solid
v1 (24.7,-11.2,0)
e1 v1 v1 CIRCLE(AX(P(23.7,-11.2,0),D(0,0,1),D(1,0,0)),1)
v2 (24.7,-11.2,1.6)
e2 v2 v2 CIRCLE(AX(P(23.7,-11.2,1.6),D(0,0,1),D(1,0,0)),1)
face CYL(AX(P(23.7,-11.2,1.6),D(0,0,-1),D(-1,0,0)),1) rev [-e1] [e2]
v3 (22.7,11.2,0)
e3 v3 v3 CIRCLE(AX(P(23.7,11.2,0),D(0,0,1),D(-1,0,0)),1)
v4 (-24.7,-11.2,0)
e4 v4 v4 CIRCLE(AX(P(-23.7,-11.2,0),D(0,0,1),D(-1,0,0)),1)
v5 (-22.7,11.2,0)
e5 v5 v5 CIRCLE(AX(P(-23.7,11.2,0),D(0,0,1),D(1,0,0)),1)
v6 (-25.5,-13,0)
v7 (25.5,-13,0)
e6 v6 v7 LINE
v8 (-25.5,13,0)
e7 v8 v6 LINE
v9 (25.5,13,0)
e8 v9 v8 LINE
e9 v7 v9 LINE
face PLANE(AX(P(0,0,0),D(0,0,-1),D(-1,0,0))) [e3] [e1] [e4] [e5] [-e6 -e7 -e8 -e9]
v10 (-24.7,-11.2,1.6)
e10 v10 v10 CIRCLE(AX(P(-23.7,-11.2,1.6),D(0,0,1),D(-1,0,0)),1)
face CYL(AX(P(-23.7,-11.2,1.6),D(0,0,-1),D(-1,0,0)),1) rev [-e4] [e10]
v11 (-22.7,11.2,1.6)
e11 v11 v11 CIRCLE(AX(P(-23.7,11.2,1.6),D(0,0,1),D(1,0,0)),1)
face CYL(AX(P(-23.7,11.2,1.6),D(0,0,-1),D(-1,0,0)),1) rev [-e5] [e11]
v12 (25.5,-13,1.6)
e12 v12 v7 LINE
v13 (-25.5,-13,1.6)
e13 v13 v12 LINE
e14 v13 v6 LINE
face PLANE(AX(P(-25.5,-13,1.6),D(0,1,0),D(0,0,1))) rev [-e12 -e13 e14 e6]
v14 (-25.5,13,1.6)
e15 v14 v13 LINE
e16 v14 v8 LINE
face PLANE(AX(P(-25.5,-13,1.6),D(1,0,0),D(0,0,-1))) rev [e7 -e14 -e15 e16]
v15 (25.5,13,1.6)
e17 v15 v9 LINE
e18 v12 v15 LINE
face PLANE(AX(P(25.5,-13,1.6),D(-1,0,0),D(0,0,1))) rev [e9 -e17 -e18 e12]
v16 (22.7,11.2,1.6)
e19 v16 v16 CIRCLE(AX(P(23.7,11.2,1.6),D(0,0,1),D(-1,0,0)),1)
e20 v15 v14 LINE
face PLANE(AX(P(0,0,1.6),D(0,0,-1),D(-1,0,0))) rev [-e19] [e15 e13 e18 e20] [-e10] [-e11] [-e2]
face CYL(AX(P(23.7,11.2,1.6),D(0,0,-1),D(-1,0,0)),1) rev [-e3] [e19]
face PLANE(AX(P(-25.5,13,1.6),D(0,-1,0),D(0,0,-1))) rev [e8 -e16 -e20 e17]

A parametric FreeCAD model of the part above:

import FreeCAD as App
import Part
import Sketcher
from FreeCAD import Vector
Q = App.Units.Quantity


def add_polygon(sketch, points):
    """Adds a closed chain of lines whose ends are joined by coincident constraints."""
    first, n = sketch.GeometryCount, len(points)
    for a, b in zip(points, points[1:] + points[:1]):
        sketch.addGeometry(Part.LineSegment(App.Vector(*a, 0), App.Vector(*b, 0)), False)
    for i in range(n):
        sketch.addConstraint(Sketcher.Constraint("Coincident", first + i, 2, first + (i + 1) % n, 1))

doc = App.newDocument("Part")
body = doc.addObject("PartDesign::Body", "Body")

# Sketch on XY plane
sketch1 = body.newObject("Sketcher::SketchObject", "Sketch")
sketch1.AttachmentSupport = (doc.getObject("XY_Plane"), [""])
sketch1.MapMode = "FlatFace"
add_polygon(sketch1, [(-25.5, 13), (-25.5, -13), (25.5, -13), (25.5, 13)])  # lines 0-3
sketch1.addGeometry(Part.Circle(Vector(-23.7, -11.2, 0), Vector(0, 0, 1), 1), False)  # 4
sketch1.addGeometry(Part.Circle(Vector(23.7, -11.2, 0), Vector(0, 0, 1), 1), False)  # 5
sketch1.addGeometry(Part.Circle(Vector(-23.7, 11.2, 0), Vector(0, 0, 1), 1), False)  # 6
sketch1.addGeometry(Part.Circle(Vector(23.7, 11.2, 0), Vector(0, 0, 1), 1), False)  # 7
sketch1.addConstraint([
    Sketcher.Constraint("Vertical", 0),
    Sketcher.Constraint("Horizontal", 1),
    Sketcher.Constraint("Vertical", 2),
    Sketcher.Constraint("Horizontal", 3),
    Sketcher.Constraint("Equal", 4, 5),
    Sketcher.Constraint("Equal", 5, 6),
    Sketcher.Constraint("Equal", 6, 7),
    Sketcher.Constraint("Symmetric", 5, 3, 6, 3, -1, 1),
    Sketcher.Constraint("Symmetric", 4, 3, 7, 3, -1, 1),
    Sketcher.Constraint("Symmetric", 0, 2, 2, 2, -1, 1),
    Sketcher.Constraint("Symmetric", 4, 3, 5, 3, -2),
    Sketcher.Constraint("Diameter", 4, Q("2 mm")),
    Sketcher.Constraint("DistanceX", 1, 1, 1, 2, Q("51 mm")),
    Sketcher.Constraint("DistanceY", 0, 2, 0, 1, Q("26 mm")),
    Sketcher.Constraint("DistanceX", 4, 3, -1, 1, Q("23.7 mm")),
    Sketcher.Constraint("DistanceY", 4, 3, -1, 1, Q("11.2 mm")),
])
pad1 = body.newObject("PartDesign::Pad", "Pad")
pad1.Profile = sketch1
pad1.Length = 1.6

doc.recompute()
